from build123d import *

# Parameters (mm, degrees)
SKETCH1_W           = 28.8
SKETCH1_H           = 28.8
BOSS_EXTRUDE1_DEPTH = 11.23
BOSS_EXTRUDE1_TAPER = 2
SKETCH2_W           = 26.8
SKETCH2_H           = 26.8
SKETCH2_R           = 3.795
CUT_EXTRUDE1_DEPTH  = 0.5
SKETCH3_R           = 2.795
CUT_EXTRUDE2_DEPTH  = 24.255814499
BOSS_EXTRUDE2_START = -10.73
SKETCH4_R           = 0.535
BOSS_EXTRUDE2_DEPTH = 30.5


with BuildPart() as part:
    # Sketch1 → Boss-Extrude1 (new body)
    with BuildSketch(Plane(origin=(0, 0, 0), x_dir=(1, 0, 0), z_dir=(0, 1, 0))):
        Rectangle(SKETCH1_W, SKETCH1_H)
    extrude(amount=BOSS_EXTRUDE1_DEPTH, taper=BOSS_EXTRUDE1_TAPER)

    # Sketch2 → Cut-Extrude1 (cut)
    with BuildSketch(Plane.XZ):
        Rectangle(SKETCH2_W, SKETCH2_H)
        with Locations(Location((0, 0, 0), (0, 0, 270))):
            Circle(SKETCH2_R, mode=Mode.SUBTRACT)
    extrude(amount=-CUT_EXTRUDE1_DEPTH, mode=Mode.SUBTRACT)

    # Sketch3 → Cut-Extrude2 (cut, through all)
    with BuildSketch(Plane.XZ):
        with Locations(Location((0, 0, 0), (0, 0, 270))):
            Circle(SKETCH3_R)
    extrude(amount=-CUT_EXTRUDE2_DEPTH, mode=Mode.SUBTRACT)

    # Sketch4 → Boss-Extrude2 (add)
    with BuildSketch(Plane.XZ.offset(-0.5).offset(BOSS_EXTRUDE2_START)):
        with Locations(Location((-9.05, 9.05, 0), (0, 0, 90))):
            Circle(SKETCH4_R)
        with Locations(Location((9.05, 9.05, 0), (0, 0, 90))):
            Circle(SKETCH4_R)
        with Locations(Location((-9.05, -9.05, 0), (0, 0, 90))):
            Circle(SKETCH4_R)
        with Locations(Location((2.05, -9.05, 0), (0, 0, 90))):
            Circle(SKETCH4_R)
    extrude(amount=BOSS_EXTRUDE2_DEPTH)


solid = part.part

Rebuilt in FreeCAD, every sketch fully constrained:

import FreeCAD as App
import Part
import Sketcher

V = App.Vector
Q = App.Units.Quantity

doc = App.newDocument("Part")
body = doc.addObject("PartDesign::Body", "Body")

# Sketch on XZ plane
sketch1 = body.newObject("Sketcher::SketchObject", "Sketch")
sketch1.AttachmentSupport = (doc.getObject("XZ_Plane"), [""])
sketch1.MapMode = "FlatFace"
sketch1.addGeometry([
    Part.LineSegment(V(-14, -14, 0), V(-14, 14, 0)),
    Part.LineSegment(V(-14, 14, 0), V(14, 14, 0)),
    Part.LineSegment(V(14, 14, 0), V(14, -14, 0)),
    Part.LineSegment(V(14, -14, 0), V(-14, -14, 0)),
], False)
sketch1.addConstraint([
    Sketcher.Constraint("Coincident", 0, 2, 1, 1),
    Sketcher.Constraint("Coincident", 1, 2, 2, 1),
    Sketcher.Constraint("Coincident", 2, 2, 3, 1),
    Sketcher.Constraint("Coincident", 3, 2, 0, 1),
    Sketcher.Constraint("Vertical", 0),
    Sketcher.Constraint("Horizontal", 1),
    Sketcher.Constraint("Vertical", 2),
    Sketcher.Constraint("Horizontal", 3),
    Sketcher.Constraint("Symmetric", 0, 2, 2, 2, -1, 1),
    Sketcher.Constraint("Equal", 3, 0),
    Sketcher.Constraint("DistanceX", 1, 1, 1, 2, Q("28.8 mm")),
])
pad1 = body.newObject("PartDesign::Pad", "Pad")
pad1.Profile = sketch1
pad1.Length = 11.23
pad1.Reversed = True
pad1.TaperAngle = -2

# Sketch on XZ plane
sketch2 = body.newObject("Sketcher::SketchObject", "Sketch001")
sketch2.AttachmentSupport = (doc.getObject("XZ_Plane"), [""])
sketch2.MapMode = "FlatFace"
sketch2.addGeometry([
    Part.LineSegment(V(-13.4, 13.4, 0), V(-13.4, -13.4, 0)),  # 0
    Part.LineSegment(V(-13.4, -13.4, 0), V(13.4, -13.4, 0)),  # 1
    Part.LineSegment(V(13.4, -13.4, 0), V(13.4, 13.4, 0)),  # 2
    Part.LineSegment(V(13.4, 13.4, 0), V(-13.4, 13.4, 0)),  # 3
    Part.Circle(V(0, 0, 0), V(0, 0, 1), 3.8),  # 4
], False)
sketch2.addConstraint([
    Sketcher.Constraint("Coincident", 0, 2, 1, 1),
    Sketcher.Constraint("Coincident", 1, 2, 2, 1),
    Sketcher.Constraint("Coincident", 2, 2, 3, 1),
    Sketcher.Constraint("Coincident", 3, 2, 0, 1),
    Sketcher.Constraint("Vertical", 0),
    Sketcher.Constraint("Horizontal", 1),
    Sketcher.Constraint("Vertical", 2),
    Sketcher.Constraint("Horizontal", 3),
    Sketcher.Constraint("Coincident", 4, 3, -1, 1),
    Sketcher.Constraint("Symmetric", 0, 2, 2, 2, -1, 1),
    Sketcher.Constraint("Equal", 3, 0),
    Sketcher.Constraint("Diameter", 4, Q("7.59 mm")),
    Sketcher.Constraint("DistanceX", 1, 1, 1, 2, Q("26.8 mm")),
])
pocket1 = body.newObject("PartDesign::Pocket", "Pocket")
pocket1.Profile = sketch2
pocket1.Length = 0.5

# Sketch on XZ plane
sketch3 = body.newObject("Sketcher::SketchObject", "Sketch002")
sketch3.AttachmentSupport = (doc.getObject("XZ_Plane"), [""])
sketch3.MapMode = "FlatFace"
sketch3.addGeometry(Part.Circle(V(0, 0, 0), V(0, 0, 1), 2.8), False)
sketch3.addConstraint([
    Sketcher.Constraint("Coincident", 0, 3, -1, 1),
    Sketcher.Constraint("Diameter", 0, Q("5.59 mm")),
])
pocket2 = body.newObject("PartDesign::Pocket", "Pocket001")
pocket2.Profile = sketch3
pocket2.Type = "ThroughAll"

# Sketch on XZ plane
sketch4 = body.newObject("Sketcher::SketchObject", "Sketch003")
sketch4.AttachmentSupport = (doc.getObject("XZ_Plane"), [""])
sketch4.MapMode = "FlatFace"
sketch4.AttachmentOffset = App.Placement(V(0, 0, -11.23), App.Rotation())
sketch4.addGeometry([
    Part.Circle(V(-9.1, 9.1, 0), V(0, 0, 1), 0.5),
    Part.Circle(V(9.1, 9.1, 0), V(0, 0, 1), 0.5),
    Part.Circle(V(-9.1, -9.1, 0), V(0, 0, 1), 0.5),
    Part.Circle(V(2, -9.1, 0), V(0, 0, 1), 0.5),
], False)
sketch4.addConstraint([
    Sketcher.Constraint("Equal", 0, 1),
    Sketcher.Constraint("Equal", 1, 2),
    Sketcher.Constraint("Equal", 2, 3),
    Sketcher.Constraint("Symmetric", 1, 3, 2, 3, -1, 1),
    Sketcher.Constraint("Symmetric", 0, 3, 1, 3, -2),
    Sketcher.Constraint("Horizontal", 2, 3, 3, 3),
    Sketcher.Constraint("Diameter", 0, Q("1.07 mm")),
    Sketcher.Constraint("DistanceX", 3, 3, 1, 3, Q("7 mm")),
    Sketcher.Constraint("DistanceX", 0, 3, 1, 3, Q("18.1 mm")),
    Sketcher.Constraint("DistanceY", 2, 3, 0, 3, Q("18.1 mm")),
])
pad2 = body.newObject("PartDesign::Pad", "Pad001")
pad2.Profile = sketch4
pad2.Length = 30.5

doc.recompute()
